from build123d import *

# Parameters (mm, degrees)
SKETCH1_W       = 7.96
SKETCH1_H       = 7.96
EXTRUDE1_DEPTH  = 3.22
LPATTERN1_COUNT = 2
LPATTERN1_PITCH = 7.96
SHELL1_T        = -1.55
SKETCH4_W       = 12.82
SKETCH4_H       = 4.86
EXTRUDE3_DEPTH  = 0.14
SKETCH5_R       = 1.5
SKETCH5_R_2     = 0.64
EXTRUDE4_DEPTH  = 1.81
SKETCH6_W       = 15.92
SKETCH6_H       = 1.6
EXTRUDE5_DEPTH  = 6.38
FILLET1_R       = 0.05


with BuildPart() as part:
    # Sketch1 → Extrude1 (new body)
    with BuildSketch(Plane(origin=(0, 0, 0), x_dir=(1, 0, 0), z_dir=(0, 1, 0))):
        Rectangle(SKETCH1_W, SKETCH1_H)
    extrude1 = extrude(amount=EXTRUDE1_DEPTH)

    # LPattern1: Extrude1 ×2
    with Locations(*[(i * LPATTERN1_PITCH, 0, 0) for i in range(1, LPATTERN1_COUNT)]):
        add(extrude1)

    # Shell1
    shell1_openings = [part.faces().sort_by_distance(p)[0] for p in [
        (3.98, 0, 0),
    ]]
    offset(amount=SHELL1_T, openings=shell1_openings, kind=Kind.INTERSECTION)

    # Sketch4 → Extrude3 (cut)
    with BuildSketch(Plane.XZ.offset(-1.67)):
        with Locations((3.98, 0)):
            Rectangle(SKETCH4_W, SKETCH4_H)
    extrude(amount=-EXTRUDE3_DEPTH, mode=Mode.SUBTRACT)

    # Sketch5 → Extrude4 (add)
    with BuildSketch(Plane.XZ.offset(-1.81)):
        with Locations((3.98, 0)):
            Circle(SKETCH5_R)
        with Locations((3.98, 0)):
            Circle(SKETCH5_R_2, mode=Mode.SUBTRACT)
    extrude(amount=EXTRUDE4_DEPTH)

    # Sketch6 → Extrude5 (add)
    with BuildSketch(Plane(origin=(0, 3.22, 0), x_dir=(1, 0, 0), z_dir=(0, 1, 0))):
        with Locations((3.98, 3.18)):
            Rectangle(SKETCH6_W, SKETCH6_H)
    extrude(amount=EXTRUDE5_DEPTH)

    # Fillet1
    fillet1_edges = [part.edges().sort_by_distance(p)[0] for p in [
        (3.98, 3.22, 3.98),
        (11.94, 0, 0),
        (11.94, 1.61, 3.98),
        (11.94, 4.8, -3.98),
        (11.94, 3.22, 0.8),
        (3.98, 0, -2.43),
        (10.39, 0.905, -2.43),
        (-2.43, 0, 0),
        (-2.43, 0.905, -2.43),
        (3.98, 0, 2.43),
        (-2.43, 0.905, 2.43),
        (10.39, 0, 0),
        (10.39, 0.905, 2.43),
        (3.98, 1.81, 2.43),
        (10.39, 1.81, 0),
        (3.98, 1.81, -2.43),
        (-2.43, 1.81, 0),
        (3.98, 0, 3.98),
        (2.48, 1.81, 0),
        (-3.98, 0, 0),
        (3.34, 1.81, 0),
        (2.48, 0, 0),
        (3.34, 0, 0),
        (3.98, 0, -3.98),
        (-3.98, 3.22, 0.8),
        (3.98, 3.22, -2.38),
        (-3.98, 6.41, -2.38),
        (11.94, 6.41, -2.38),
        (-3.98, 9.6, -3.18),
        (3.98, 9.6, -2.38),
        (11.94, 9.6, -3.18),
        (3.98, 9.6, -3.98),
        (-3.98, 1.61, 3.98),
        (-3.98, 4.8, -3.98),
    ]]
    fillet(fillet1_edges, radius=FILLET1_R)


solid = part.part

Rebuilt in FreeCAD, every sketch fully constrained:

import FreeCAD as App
import Part
import Sketcher
from FreeCAD import Vector
Q = App.Units.Quantity


def faces_at(feature, points):
    """Names of the faces that lie closest to the given points."""
    faces = feature.Shape.Faces
    near = lambda p: min(range(len(faces)), key=lambda i: faces[i].distToShape(Part.Vertex(*p))[0])
    return sorted({f"Face{near(p) + 1}" for p in points})


def add_polygon(sketch, points):
    """Adds a closed chain of lines whose ends are joined by coincident constraints."""
    first, n = sketch.GeometryCount, len(points)
    for a, b in zip(points, points[1:] + points[:1]):
        sketch.addGeometry(Part.LineSegment(App.Vector(*a, 0), App.Vector(*b, 0)), False)
    for i in range(n):
        sketch.addConstraint(Sketcher.Constraint("Coincident", first + i, 2, first + (i + 1) % n, 1))

doc = App.newDocument("Part")
body = doc.addObject("PartDesign::Body", "Body")

# Sketch on XZ plane
sketch1 = doc.addObject("Sketcher::SketchObject", "Sketch")
body.addObject(sketch1)
sketch1.AttachmentSupport = (doc.XZ_Plane, [""])
sketch1.MapMode = "FlatFace"
add_polygon(sketch1, [(-3.98, -3.98), (-3.98, 3.98), (3.98, 3.98), (3.98, -3.98)])  # lines 0-3
sketch1.addConstraint(Sketcher.Constraint("Vertical", 0))
sketch1.addConstraint(Sketcher.Constraint("Horizontal", 1))
sketch1.addConstraint(Sketcher.Constraint("Vertical", 2))
sketch1.addConstraint(Sketcher.Constraint("Horizontal", 3))
sketch1.addConstraint(Sketcher.Constraint("Symmetric", 0, 2, 2, 2, -1, 1))
sketch1.addConstraint(Sketcher.Constraint("Equal", 3, 0))
sketch1.addConstraint(Sketcher.Constraint("DistanceX", 1, 1, 1, 2, Q("7.96 mm")))
pad1 = doc.addObject("PartDesign::Pad", "Pad")
body.addObject(pad1)
pad1.Profile = sketch1
pad1.Length = 3.22
pad1.Reversed = True
doc.recompute()

linearpattern = doc.addObject("PartDesign::LinearPattern", "LinearPattern")
body.addObject(linearpattern)
linearpattern.Originals = [pad1]
linearpattern.Direction = (doc.X_Axis, [""])
linearpattern.Mode = "offset"
linearpattern.Offset = 7.96
linearpattern.Occurrences = 2
body.Tip = linearpattern
doc.recompute()

thickness = doc.addObject("PartDesign::Thickness", "Thickness")
body.addObject(thickness)
thickness.Base = (linearpattern, faces_at(linearpattern, [(3.98, 0, 0)]))
thickness.Value = 1.55
thickness.Reversed = True
thickness.Join = "Intersection"

# Sketch on XZ plane
sketch2 = doc.addObject("Sketcher::SketchObject", "Sketch001")
body.addObject(sketch2)
sketch2.AttachmentSupport = (doc.XZ_Plane, [""])
sketch2.MapMode = "FlatFace"
sketch2.AttachmentOffset = App.Placement(Vector(0, 0, -1.67), App.Rotation())
add_polygon(sketch2, [(-2.43, 2.43), (-2.43, -2.43), (10.39, -2.43), (10.39, 2.43)])  # lines 0-3
sketch2.addConstraint(Sketcher.Constraint("Vertical", 0))
sketch2.addConstraint(Sketcher.Constraint("Horizontal", 1))
sketch2.addConstraint(Sketcher.Constraint("Vertical", 2))
sketch2.addConstraint(Sketcher.Constraint("Horizontal", 3))
sketch2.addConstraint(Sketcher.Constraint("DistanceX", 1, 1, 1, 2, Q("12.82 mm")))
sketch2.addConstraint(Sketcher.Constraint("DistanceY", 0, 2, 0, 1, Q("4.86 mm")))
sketch2.addConstraint(Sketcher.Constraint("DistanceX", 0, 2, -1, 1, Q("2.43 mm")))
sketch2.addConstraint(Sketcher.Constraint("DistanceY", 0, 2, -1, 1, Q("2.43 mm")))
pocket1 = doc.addObject("PartDesign::Pocket", "Pocket")
body.addObject(pocket1)
pocket1.Profile = sketch2
pocket1.Length = 0.14

# Sketch on XZ plane
sketch3 = doc.addObject("Sketcher::SketchObject", "Sketch002")
body.addObject(sketch3)
sketch3.AttachmentSupport = (doc.XZ_Plane, [""])
sketch3.MapMode = "FlatFace"
sketch3.AttachmentOffset = App.Placement(Vector(0, 0, -1.81), App.Rotation())
sketch3.addGeometry(Part.Circle(Vector(3.98, 0, 0), Vector(0, 0, 1), 1.5), False)
sketch3.addGeometry(Part.Circle(Vector(3.98, 0, 0), Vector(0, 0, 1), 0.64), False)
sketch3.addConstraint(Sketcher.Constraint("Coincident", 1, 3, 0, 3))
sketch3.addConstraint(Sketcher.Constraint("PointOnObject", 0, 3, -1))
sketch3.addConstraint(Sketcher.Constraint("Diameter", 0, Q("3 mm")))
sketch3.addConstraint(Sketcher.Constraint("Diameter", 1, Q("1.28 mm")))
sketch3.addConstraint(Sketcher.Constraint("DistanceX", -1, 1, 0, 3, Q("3.98 mm")))
pad2 = doc.addObject("PartDesign::Pad", "Pad001")
body.addObject(pad2)
pad2.Profile = sketch3
pad2.Length = 1.81

# Sketch on XZ plane
sketch4 = doc.addObject("Sketcher::SketchObject", "Sketch003")
body.addObject(sketch4)
sketch4.AttachmentSupport = (doc.XZ_Plane, [""])
sketch4.MapMode = "FlatFace"
sketch4.AttachmentOffset = App.Placement(Vector(0, 0, -3.22), App.Rotation())
add_polygon(sketch4, [(-3.98, -3.98), (-3.98, -2.38), (11.94, -2.38), (11.94, -3.98)])  # lines 0-3
sketch4.addConstraint(Sketcher.Constraint("Vertical", 0))
sketch4.addConstraint(Sketcher.Constraint("Horizontal", 1))
sketch4.addConstraint(Sketcher.Constraint("Vertical", 2))
sketch4.addConstraint(Sketcher.Constraint("Horizontal", 3))
sketch4.addConstraint(Sketcher.Constraint("DistanceY", 0, 1, 0, 2, Q("1.6 mm")))
sketch4.addConstraint(Sketcher.Constraint("DistanceX", 1, 1, 1, 2, Q("15.92 mm")))
sketch4.addConstraint(Sketcher.Constraint("DistanceX", 0, 2, -1, 1, Q("3.98 mm")))
sketch4.addConstraint(Sketcher.Constraint("DistanceY", 0, 2, -1, 1, Q("2.38 mm")))
pad3 = doc.addObject("PartDesign::Pad", "Pad002")
body.addObject(pad3)
pad3.Profile = sketch4
pad3.Length = 6.38
pad3.Reversed = True
doc.recompute()

fillet = doc.addObject("PartDesign::Fillet", "Fillet")
body.addObject(fillet)
fillet.Base = (pad3, ["Edge1"])
fillet.UseAllEdges = True
fillet.Radius = 0.05

doc.recompute()
